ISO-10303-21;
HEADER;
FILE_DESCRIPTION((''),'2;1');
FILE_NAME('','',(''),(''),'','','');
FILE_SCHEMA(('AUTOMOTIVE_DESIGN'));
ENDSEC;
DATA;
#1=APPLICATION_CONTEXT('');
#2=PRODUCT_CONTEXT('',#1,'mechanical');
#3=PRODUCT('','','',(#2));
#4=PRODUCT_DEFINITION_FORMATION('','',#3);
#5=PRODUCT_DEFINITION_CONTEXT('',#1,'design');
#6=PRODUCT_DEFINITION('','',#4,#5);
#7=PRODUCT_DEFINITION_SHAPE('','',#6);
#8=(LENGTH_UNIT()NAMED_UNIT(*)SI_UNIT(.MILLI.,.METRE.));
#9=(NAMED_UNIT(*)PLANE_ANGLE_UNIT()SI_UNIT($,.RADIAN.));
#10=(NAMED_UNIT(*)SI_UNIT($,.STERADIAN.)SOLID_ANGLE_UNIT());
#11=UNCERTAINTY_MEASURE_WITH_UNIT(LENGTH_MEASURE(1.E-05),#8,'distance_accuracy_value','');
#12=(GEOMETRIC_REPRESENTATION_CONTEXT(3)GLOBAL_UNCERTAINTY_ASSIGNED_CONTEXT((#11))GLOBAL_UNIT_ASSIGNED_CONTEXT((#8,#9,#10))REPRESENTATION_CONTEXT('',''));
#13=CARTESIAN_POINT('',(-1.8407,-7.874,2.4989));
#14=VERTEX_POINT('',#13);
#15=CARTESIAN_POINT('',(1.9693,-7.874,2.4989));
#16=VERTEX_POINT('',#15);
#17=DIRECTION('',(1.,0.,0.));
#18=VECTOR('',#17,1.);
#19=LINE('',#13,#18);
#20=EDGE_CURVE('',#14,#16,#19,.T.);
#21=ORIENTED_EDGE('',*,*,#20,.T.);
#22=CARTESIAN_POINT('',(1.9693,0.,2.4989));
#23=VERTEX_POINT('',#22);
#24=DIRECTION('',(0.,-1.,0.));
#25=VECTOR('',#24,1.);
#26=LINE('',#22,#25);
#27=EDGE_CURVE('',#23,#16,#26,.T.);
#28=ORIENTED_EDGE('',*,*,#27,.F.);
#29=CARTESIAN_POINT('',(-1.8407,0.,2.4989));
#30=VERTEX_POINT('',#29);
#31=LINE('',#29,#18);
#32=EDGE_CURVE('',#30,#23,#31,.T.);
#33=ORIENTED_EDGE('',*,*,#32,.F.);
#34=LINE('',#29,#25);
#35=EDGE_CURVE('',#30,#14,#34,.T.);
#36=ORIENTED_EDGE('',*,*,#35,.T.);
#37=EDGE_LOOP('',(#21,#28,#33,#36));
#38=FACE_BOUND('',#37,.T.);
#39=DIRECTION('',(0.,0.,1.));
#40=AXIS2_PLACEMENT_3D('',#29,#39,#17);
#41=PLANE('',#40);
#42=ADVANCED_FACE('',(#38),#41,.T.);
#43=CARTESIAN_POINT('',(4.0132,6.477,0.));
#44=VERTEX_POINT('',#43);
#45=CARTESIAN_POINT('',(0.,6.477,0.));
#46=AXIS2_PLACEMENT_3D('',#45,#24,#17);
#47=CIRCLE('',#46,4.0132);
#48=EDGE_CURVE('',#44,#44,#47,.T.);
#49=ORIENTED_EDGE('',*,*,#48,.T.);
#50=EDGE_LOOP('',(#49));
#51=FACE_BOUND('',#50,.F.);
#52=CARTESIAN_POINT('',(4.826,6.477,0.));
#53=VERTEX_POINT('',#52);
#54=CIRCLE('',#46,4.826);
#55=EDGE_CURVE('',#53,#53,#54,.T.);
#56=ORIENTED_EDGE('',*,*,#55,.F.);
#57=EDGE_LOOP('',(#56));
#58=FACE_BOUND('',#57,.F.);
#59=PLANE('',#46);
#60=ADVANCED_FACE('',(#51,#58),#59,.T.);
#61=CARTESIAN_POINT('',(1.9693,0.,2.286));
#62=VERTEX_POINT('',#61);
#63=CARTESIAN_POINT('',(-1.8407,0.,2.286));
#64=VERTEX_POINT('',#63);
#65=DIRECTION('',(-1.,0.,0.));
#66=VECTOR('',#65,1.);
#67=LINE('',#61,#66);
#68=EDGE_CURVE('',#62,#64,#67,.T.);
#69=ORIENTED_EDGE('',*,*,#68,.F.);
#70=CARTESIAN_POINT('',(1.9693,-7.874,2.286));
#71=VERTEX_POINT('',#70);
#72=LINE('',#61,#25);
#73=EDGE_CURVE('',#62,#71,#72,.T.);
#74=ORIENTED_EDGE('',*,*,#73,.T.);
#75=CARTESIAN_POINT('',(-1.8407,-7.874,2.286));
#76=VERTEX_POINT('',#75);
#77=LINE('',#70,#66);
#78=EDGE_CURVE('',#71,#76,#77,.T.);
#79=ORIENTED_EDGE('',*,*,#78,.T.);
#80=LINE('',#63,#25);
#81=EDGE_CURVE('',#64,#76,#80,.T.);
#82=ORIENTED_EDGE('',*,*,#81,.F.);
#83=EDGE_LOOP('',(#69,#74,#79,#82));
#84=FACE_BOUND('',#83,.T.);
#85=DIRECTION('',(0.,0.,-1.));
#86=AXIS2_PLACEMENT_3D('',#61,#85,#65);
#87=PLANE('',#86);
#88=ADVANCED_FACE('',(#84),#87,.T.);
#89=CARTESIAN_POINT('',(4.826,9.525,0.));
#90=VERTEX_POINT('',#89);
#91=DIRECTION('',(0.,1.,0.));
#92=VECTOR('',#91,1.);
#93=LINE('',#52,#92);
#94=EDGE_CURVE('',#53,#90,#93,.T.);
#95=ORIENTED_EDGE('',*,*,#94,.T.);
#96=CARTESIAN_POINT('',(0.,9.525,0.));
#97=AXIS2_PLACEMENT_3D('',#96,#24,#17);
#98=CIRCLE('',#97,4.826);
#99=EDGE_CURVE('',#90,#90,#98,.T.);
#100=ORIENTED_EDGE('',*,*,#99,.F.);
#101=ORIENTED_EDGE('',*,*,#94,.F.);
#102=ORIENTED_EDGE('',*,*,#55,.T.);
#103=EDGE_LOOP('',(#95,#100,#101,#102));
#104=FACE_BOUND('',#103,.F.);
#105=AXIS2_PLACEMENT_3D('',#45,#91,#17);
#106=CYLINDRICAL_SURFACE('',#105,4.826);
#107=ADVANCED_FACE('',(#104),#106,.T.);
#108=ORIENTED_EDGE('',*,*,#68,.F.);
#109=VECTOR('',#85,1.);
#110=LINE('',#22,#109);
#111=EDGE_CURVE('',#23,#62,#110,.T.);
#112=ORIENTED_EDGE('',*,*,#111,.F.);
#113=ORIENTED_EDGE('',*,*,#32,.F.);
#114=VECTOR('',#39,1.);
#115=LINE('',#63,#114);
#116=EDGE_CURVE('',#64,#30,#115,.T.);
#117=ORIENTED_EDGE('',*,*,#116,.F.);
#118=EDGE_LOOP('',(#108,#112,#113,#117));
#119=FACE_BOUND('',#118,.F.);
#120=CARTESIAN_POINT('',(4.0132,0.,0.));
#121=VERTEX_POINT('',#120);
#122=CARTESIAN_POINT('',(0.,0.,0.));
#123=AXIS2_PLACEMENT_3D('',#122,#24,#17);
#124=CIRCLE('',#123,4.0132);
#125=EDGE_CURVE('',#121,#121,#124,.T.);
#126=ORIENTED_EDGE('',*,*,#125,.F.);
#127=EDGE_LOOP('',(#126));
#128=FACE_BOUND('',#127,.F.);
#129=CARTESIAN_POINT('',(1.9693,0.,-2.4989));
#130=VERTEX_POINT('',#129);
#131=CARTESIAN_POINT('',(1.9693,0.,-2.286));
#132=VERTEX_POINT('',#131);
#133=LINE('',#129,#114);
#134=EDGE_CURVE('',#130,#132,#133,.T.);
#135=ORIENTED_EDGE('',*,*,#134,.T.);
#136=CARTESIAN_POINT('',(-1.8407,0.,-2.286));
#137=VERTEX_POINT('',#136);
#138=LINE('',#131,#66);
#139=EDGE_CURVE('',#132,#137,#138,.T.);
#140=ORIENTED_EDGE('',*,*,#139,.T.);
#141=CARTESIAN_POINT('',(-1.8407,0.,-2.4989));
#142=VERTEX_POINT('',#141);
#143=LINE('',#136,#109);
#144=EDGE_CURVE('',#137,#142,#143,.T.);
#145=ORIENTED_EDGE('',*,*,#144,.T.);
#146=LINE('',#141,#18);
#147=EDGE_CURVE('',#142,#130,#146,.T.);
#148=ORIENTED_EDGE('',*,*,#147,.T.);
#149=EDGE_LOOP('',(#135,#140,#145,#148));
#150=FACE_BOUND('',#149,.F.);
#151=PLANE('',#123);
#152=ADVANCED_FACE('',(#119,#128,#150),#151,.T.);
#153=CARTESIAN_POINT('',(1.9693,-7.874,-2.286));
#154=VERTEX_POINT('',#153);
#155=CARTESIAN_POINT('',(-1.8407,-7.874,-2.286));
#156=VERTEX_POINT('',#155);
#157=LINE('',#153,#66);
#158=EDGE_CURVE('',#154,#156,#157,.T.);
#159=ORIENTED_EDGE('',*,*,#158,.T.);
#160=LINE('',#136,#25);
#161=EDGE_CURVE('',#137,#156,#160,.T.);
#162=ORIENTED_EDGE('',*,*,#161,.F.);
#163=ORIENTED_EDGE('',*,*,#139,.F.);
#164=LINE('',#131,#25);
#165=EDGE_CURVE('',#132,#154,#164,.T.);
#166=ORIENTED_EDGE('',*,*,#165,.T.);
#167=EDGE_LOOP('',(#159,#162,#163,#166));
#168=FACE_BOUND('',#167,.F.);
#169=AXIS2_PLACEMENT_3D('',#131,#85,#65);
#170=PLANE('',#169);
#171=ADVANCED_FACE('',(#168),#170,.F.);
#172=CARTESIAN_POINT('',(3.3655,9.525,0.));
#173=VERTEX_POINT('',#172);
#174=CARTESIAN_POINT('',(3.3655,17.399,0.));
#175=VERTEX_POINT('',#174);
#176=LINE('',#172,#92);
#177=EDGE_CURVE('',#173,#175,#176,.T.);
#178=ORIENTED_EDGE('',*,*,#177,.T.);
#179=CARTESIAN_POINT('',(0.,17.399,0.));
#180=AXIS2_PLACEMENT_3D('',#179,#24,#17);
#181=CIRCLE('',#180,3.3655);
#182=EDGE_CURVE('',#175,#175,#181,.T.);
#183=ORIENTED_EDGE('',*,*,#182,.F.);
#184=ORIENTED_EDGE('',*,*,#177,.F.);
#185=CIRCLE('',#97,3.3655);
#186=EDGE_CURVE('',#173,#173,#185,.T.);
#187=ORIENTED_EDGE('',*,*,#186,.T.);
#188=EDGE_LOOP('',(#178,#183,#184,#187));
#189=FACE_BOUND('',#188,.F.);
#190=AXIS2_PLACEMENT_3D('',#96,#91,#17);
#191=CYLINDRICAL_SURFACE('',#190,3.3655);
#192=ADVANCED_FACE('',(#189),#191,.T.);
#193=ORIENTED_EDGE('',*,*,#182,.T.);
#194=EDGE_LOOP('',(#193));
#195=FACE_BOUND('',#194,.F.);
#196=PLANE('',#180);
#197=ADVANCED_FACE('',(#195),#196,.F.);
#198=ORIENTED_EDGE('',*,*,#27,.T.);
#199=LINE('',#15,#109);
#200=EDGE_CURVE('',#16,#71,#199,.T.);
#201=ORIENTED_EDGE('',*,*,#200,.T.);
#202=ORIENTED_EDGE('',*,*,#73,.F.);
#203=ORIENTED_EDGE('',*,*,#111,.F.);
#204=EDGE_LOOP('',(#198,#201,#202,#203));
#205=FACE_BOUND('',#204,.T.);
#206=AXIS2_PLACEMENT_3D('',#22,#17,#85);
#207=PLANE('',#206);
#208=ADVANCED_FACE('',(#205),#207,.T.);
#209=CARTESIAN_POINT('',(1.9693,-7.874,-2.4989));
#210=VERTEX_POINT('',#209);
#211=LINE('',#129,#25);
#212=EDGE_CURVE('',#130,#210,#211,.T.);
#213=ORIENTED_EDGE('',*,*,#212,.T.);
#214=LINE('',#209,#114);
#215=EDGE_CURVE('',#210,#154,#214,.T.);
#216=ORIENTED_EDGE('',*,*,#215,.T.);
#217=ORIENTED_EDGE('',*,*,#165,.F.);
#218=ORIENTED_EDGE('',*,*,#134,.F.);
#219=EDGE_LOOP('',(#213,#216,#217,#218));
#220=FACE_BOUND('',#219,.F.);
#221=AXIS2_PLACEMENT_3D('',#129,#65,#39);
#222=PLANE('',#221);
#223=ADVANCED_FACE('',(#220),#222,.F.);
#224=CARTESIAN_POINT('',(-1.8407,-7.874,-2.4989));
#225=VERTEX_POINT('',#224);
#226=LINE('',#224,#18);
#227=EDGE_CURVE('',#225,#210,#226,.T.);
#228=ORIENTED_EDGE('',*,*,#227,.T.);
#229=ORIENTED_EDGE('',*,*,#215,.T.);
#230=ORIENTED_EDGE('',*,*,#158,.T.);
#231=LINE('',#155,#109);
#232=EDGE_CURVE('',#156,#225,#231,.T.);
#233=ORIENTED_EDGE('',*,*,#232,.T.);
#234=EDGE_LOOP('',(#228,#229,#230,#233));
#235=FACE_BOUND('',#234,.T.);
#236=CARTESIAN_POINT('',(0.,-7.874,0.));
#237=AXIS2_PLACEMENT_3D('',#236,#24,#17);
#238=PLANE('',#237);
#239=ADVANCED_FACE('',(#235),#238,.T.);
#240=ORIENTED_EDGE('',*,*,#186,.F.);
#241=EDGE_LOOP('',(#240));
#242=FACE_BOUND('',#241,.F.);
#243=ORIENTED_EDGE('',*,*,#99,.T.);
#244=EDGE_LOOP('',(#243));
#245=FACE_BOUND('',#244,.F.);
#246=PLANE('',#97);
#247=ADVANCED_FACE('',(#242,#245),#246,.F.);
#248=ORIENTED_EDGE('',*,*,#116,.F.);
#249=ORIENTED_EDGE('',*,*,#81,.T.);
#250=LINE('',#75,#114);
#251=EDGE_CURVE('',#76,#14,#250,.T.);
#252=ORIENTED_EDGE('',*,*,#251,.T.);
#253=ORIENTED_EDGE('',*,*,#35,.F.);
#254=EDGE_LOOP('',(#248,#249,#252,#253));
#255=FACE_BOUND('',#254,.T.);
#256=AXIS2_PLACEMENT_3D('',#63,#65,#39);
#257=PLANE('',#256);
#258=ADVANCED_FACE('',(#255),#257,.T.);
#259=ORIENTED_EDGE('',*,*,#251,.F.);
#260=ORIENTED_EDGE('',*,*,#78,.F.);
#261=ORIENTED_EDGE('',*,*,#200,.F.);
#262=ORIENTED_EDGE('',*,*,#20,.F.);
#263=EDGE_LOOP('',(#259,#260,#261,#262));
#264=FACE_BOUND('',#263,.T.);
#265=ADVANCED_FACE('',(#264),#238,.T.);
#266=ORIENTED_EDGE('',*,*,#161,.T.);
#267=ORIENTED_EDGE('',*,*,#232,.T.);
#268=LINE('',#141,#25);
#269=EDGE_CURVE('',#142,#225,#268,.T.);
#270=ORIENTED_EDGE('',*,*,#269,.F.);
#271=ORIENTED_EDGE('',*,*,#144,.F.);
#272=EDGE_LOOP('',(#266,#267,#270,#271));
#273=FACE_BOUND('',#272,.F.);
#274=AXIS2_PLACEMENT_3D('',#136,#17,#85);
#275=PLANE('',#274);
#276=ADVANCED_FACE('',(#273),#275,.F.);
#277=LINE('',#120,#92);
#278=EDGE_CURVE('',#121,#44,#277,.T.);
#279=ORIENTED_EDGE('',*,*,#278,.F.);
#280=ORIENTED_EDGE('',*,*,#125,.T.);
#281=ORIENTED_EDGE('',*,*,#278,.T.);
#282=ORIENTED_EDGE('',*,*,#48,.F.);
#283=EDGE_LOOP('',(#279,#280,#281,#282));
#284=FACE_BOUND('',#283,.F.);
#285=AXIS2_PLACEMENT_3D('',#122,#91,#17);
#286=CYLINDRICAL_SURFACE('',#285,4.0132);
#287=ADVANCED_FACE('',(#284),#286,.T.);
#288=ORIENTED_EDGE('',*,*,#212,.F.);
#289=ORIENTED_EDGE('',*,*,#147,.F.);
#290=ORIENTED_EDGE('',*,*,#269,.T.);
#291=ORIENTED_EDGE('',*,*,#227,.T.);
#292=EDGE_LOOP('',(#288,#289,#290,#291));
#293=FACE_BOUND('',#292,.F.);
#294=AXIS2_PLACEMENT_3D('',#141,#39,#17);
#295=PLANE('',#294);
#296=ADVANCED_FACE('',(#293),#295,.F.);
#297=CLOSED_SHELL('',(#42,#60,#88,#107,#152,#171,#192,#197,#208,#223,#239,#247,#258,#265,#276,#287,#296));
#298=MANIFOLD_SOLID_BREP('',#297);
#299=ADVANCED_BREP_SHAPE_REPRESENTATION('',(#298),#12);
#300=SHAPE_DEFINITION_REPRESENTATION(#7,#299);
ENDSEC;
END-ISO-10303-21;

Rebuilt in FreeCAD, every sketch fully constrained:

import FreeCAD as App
import Part
import Sketcher
Q = App.Units.Quantity

doc = App.newDocument("Part")
body = doc.addObject("PartDesign::Body", "Body")

# Sketch on XY plane
sketch1 = body.newObject("Sketcher::SketchObject", "Sketch")
sketch1.AttachmentSupport = (doc.getObject("XY_Plane"), [""])
sketch1.MapMode = "FlatFace"
sketch1.addGeometry([
    Part.LineSegment(App.Vector(0, 0, 0), App.Vector(4, 0, 0)),  # 0
    Part.LineSegment(App.Vector(4, 0, 0), App.Vector(4, 6.5, 0)),  # 1
    Part.LineSegment(App.Vector(4, 6.5, 0), App.Vector(4.8, 6.5, 0)),  # 2
    Part.LineSegment(App.Vector(4.8, 6.5, 0), App.Vector(4.8, 9.5, 0)),  # 3
    Part.LineSegment(App.Vector(4.8, 9.5, 0), App.Vector(3.4, 9.5, 0)),  # 4
    Part.LineSegment(App.Vector(3.4, 9.5, 0), App.Vector(3.4, 17.4, 0)),  # 5
    Part.LineSegment(App.Vector(3.4, 17.4, 0), App.Vector(0, 17.4, 0)),  # 6
    Part.LineSegment(App.Vector(0, 17.4, 0), App.Vector(0, 0, 0)),  # 7
], False)
sketch1.addConstraint([
    Sketcher.Constraint("Coincident", 0, 2, 1, 1),
    Sketcher.Constraint("Coincident", 1, 2, 2, 1),
    Sketcher.Constraint("Coincident", 2, 2, 3, 1),
    Sketcher.Constraint("Coincident", 3, 2, 4, 1),
    Sketcher.Constraint("Coincident", 4, 2, 5, 1),
    Sketcher.Constraint("Coincident", 5, 2, 6, 1),
    Sketcher.Constraint("Coincident", 6, 2, 7, 1),
    Sketcher.Constraint("Coincident", 7, 2, 0, 1),
    Sketcher.Constraint("Horizontal", 0),
    Sketcher.Constraint("Vertical", 1),
    Sketcher.Constraint("Horizontal", 2),
    Sketcher.Constraint("Vertical", 3),
    Sketcher.Constraint("Horizontal", 4),
    Sketcher.Constraint("Vertical", 5),
    Sketcher.Constraint("Horizontal", 6),
    Sketcher.Constraint("Vertical", 7),
    Sketcher.Constraint("Coincident", 7, 2, -1, 1),
    Sketcher.Constraint("DistanceY", 3, 1, 3, 2, Q("0.12 in")),
    Sketcher.Constraint("DistanceY", 5, 1, 5, 2, Q("0.31 in")),
    Sketcher.Constraint("DistanceX", 0, 1, 0, 2, Q("0.158 in")),
    Sketcher.Constraint("DistanceY", 1, 1, 1, 2, Q("0.255 in")),
    Sketcher.Constraint("DistanceX", -1, 1, 2, 2, Q("0.19 in")),
    Sketcher.Constraint("DistanceX", 6, 2, 6, 1, Q("0.1325 in")),
])
revolution = body.newObject("PartDesign::Revolution", "Revolution")
revolution.Profile = sketch1
revolution.ReferenceAxis = (sketch1, ["V_Axis"])
revolution.Angle = 360

# Sketch on XZ plane
sketch2 = body.newObject("Sketcher::SketchObject", "Sketch001")
sketch2.AttachmentSupport = (doc.getObject("XZ_Plane"), [""])
sketch2.MapMode = "FlatFace"
sketch2.addGeometry([
    Part.LineSegment(App.Vector(1.97, -2.5, 0), App.Vector(1.97, -2.29, 0)),  # 0
    Part.LineSegment(App.Vector(1.97, -2.29, 0), App.Vector(-1.84, -2.29, 0)),  # 1
    Part.LineSegment(App.Vector(-1.84, -2.29, 0), App.Vector(-1.84, -2.5, 0)),  # 2
    Part.LineSegment(App.Vector(-1.84, -2.5, 0), App.Vector(1.97, -2.5, 0)),  # 3
    Part.LineSegment(App.Vector(-1.84, 2.29, 0), App.Vector(1.97, 2.29, 0)),  # 4
    Part.LineSegment(App.Vector(1.97, 2.29, 0), App.Vector(1.97, 2.5, 0)),  # 5
    Part.LineSegment(App.Vector(1.97, 2.5, 0), App.Vector(-1.84, 2.5, 0)),  # 6
    Part.LineSegment(App.Vector(-1.84, 2.5, 0), App.Vector(-1.84, 2.29, 0)),  # 7
], False)
sketch2.addConstraint([
    Sketcher.Constraint("Coincident", 0, 2, 1, 1),
    Sketcher.Constraint("Coincident", 1, 2, 2, 1),
    Sketcher.Constraint("Coincident", 2, 2, 3, 1),
    Sketcher.Constraint("Coincident", 3, 2, 0, 1),
    Sketcher.Constraint("Coincident", 4, 2, 5, 1),
    Sketcher.Constraint("Coincident", 5, 2, 6, 1),
    Sketcher.Constraint("Coincident", 6, 2, 7, 1),
    Sketcher.Constraint("Coincident", 7, 2, 4, 1),
    Sketcher.Constraint("Vertical", 0),
    Sketcher.Constraint("Horizontal", 1),
    Sketcher.Constraint("Vertical", 2),
    Sketcher.Constraint("Horizontal", 3),
    Sketcher.Constraint("Horizontal", 4),
    Sketcher.Constraint("Vertical", 5),
    Sketcher.Constraint("Horizontal", 6),
    Sketcher.Constraint("Vertical", 7),
    Sketcher.Constraint("Symmetric", 0, 2, 4, 2, -1),
    Sketcher.Constraint("Symmetric", 2, 2, 6, 2, -1),
    Sketcher.Constraint("DistanceX", 1, 2, 1, 1, Q("0.15 in")),
    Sketcher.Constraint("DistanceY", 0, 2, -1, 1, Q("0.09 in")),
    Sketcher.Constraint("DistanceY", 0, 1, 0, 2, 0.213),
    Sketcher.Constraint("DistanceX", -1, 1, 0, 2, 1.9693),
])
pad1 = body.newObject("PartDesign::Pad", "Pad")
pad1.Profile = sketch2
pad1.Length = Q("0.31 in")

doc.recompute()
